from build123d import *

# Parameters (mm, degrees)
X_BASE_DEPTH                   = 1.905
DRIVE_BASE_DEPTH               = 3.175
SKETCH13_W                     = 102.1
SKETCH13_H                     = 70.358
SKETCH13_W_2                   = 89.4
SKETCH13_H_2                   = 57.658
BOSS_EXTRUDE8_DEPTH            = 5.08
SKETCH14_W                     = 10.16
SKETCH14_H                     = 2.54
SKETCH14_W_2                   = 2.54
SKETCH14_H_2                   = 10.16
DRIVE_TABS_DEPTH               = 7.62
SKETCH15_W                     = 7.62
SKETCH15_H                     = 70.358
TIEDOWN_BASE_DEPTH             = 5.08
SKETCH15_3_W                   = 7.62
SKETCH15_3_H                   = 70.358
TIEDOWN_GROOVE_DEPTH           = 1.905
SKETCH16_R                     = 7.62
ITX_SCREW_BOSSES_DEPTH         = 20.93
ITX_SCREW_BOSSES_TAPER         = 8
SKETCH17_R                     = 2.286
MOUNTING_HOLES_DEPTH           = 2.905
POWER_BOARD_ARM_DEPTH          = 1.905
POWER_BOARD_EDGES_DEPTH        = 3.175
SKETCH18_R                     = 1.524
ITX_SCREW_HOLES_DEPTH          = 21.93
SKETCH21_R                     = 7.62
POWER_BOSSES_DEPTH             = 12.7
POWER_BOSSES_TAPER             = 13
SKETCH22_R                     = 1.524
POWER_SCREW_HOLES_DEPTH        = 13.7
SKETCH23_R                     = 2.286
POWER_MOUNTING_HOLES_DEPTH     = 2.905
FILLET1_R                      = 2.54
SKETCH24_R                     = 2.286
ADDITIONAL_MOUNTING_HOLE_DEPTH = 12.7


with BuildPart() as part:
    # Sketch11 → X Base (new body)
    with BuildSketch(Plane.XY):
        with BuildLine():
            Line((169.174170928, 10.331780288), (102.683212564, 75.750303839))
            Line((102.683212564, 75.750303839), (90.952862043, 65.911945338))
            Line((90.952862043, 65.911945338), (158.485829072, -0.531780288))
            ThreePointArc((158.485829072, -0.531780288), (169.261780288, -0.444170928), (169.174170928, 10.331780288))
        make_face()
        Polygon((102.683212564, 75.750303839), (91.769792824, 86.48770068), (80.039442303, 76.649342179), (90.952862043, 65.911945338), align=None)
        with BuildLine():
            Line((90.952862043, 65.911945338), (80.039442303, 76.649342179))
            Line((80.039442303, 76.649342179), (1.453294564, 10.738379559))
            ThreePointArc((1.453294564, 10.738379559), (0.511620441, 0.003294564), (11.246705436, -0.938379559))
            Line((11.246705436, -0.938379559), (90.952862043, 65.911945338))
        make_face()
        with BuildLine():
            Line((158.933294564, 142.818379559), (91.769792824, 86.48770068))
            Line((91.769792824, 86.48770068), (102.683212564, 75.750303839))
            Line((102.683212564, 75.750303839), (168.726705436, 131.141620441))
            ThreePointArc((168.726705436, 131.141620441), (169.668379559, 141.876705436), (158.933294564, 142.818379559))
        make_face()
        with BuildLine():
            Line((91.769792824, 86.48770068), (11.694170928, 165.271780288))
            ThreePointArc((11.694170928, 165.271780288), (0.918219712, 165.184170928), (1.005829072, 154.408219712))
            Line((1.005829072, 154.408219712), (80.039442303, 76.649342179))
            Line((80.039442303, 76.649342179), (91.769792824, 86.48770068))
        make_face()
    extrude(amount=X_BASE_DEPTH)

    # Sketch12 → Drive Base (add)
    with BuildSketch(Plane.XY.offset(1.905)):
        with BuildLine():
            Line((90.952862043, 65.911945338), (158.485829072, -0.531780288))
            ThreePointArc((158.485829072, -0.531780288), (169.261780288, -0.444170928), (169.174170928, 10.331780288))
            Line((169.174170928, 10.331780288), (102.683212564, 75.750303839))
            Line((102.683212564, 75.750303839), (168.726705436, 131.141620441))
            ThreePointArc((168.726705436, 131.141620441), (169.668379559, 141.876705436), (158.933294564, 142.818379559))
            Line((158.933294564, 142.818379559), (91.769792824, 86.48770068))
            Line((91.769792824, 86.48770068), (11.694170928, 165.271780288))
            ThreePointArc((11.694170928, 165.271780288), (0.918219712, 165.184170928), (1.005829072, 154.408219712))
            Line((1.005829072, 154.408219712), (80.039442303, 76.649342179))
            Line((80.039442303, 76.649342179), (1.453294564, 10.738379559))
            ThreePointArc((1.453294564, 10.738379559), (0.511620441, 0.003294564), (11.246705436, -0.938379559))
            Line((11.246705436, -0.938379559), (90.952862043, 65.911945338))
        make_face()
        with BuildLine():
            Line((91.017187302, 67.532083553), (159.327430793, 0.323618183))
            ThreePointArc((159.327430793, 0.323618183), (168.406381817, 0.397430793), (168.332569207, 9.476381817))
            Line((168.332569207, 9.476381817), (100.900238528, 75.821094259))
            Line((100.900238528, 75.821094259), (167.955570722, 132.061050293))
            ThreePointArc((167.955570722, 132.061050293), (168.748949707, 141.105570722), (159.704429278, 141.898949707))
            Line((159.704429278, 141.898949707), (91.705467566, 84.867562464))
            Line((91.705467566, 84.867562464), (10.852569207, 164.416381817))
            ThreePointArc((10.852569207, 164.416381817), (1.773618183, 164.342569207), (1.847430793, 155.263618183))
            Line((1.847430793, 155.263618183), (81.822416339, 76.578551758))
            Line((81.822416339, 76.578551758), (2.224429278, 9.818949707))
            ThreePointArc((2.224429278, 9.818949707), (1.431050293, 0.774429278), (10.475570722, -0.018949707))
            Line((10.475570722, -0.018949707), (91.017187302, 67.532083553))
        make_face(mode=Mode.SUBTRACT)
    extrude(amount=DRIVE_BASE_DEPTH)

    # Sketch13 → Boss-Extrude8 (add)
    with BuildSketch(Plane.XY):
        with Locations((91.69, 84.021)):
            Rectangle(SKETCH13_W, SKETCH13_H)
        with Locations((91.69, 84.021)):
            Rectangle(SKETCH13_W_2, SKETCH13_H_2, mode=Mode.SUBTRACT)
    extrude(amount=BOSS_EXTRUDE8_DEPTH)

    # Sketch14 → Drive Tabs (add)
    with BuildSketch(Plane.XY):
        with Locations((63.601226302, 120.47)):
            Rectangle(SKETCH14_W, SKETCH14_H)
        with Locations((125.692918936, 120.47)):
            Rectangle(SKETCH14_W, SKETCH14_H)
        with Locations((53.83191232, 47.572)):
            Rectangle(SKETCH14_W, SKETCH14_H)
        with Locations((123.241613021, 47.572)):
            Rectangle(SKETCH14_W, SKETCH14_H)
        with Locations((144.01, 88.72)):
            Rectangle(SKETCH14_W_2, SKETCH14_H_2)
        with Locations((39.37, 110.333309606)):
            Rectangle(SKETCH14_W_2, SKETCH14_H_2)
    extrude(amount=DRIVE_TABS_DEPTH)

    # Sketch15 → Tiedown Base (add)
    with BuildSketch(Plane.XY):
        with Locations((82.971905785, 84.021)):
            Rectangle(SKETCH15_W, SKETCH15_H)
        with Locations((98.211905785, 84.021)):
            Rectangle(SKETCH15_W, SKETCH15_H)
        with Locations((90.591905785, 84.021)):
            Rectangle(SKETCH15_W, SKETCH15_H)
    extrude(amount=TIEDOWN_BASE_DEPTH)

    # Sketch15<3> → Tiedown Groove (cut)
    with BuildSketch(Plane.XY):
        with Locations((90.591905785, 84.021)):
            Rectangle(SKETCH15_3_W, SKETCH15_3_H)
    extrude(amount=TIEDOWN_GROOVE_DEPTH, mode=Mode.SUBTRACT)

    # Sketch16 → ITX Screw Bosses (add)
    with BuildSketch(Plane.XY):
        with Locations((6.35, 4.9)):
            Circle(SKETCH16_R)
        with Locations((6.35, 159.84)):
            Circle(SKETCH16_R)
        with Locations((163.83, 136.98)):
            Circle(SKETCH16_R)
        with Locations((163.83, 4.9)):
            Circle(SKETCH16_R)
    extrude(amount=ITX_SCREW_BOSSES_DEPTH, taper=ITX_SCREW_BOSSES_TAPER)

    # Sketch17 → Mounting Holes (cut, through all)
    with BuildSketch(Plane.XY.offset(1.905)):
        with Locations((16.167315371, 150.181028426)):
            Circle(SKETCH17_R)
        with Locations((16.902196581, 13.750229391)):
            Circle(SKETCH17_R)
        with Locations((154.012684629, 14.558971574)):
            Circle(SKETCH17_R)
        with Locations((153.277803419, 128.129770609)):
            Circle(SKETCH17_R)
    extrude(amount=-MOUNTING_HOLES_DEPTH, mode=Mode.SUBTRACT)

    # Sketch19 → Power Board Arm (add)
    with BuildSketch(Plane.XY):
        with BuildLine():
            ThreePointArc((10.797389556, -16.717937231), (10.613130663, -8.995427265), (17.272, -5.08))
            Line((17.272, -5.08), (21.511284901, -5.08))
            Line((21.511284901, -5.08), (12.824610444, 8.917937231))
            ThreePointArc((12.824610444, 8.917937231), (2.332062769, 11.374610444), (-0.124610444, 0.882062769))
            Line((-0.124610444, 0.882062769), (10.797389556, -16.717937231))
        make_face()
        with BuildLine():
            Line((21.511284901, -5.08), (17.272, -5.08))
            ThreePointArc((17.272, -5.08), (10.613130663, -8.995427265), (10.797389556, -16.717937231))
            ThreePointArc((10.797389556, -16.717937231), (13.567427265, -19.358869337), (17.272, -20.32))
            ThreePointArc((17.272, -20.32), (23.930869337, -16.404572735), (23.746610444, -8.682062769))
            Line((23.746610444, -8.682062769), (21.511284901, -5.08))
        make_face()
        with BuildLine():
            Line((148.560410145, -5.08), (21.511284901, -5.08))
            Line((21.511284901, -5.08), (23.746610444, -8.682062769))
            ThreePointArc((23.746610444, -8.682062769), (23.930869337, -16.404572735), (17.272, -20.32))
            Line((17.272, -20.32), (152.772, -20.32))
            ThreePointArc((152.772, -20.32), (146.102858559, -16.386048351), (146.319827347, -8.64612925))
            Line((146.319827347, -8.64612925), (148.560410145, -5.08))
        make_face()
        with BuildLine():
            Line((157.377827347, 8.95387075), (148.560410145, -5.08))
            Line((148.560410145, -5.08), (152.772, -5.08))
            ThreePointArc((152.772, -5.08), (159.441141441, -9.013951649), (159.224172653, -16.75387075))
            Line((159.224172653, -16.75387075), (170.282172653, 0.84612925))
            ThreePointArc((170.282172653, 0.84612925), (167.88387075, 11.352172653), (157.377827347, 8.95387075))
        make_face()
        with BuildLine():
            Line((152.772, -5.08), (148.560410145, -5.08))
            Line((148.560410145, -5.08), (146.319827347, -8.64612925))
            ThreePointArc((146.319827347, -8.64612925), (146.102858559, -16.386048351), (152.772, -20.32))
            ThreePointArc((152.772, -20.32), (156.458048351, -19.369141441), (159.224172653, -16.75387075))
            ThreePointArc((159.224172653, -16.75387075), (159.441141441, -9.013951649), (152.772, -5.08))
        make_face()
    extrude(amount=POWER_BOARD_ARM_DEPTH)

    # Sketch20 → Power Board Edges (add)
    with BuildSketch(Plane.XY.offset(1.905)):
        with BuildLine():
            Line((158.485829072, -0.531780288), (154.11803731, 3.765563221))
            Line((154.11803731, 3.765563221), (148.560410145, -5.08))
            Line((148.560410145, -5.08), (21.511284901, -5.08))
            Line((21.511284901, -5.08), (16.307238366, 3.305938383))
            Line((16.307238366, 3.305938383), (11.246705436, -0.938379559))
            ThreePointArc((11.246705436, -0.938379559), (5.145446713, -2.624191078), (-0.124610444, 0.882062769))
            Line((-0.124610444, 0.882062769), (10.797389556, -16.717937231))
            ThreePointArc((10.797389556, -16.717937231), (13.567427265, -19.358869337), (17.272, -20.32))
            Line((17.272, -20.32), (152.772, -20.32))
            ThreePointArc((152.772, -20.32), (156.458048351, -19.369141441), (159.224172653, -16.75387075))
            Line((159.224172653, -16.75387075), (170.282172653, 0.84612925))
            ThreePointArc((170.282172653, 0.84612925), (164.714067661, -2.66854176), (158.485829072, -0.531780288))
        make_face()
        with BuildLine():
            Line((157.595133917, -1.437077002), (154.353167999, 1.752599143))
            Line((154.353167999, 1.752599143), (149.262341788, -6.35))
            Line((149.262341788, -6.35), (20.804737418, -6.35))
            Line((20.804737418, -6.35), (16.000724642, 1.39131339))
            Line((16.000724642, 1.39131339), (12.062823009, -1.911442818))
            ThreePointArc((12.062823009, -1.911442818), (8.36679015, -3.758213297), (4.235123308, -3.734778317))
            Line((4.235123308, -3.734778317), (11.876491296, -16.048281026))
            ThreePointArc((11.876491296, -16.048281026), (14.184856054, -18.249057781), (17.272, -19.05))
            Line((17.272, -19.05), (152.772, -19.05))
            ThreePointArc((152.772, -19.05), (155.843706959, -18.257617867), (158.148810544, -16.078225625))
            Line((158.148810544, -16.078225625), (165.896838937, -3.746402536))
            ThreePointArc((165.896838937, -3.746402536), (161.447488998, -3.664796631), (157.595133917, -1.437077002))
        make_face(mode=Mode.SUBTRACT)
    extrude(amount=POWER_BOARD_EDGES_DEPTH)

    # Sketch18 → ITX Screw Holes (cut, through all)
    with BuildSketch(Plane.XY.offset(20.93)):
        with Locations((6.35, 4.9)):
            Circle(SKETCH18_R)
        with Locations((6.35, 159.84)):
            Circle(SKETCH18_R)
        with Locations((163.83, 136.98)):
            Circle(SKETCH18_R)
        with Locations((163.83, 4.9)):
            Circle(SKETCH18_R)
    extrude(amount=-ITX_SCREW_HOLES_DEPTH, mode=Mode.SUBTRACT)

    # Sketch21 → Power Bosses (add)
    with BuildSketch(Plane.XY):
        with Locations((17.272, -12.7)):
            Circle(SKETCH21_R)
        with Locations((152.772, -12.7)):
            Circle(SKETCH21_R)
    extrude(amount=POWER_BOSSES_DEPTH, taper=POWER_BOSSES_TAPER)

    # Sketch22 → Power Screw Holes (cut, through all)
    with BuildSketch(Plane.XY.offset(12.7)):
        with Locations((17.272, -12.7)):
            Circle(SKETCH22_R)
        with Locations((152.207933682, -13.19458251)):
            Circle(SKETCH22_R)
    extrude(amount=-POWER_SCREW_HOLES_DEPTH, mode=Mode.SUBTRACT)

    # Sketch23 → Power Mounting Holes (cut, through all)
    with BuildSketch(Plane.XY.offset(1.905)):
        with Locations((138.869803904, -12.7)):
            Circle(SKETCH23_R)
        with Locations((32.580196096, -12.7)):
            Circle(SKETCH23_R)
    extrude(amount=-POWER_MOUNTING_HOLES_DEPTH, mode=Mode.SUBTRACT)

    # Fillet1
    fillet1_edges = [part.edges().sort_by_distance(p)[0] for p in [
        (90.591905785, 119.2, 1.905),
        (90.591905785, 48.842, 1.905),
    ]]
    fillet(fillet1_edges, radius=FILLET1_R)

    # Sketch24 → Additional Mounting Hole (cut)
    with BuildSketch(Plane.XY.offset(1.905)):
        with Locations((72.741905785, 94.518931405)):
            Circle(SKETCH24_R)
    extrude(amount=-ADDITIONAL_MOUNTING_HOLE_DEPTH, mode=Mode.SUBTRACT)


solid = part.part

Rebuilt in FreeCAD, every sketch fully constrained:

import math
import FreeCAD as App
import Part
import Sketcher
from FreeCAD import Vector
Q = App.Units.Quantity


def edges_at(feature, points):
    """Names of the edges that pass closest to the given points."""
    edges = feature.Shape.Edges
    near = lambda p: min(range(len(edges)), key=lambda i: edges[i].distToShape(Part.Vertex(*p))[0])
    return sorted({f"Edge{near(p) + 1}" for p in points})


def add_polygon(sketch, points):
    """Adds a closed chain of lines whose ends are joined by coincident constraints."""
    first, n = sketch.GeometryCount, len(points)
    for a, b in zip(points, points[1:] + points[:1]):
        sketch.addGeometry(Part.LineSegment(App.Vector(*a, 0), App.Vector(*b, 0)), False)
    for i in range(n):
        sketch.addConstraint(Sketcher.Constraint("Coincident", first + i, 2, first + (i + 1) % n, 1))

doc = App.newDocument("Part")
body = doc.addObject("PartDesign::Body", "Body")

sketch1 = body.newObject("Sketcher::SketchObject", "Sketch")
sketch1.AttachmentSupport = (doc.getObject("XY_Plane"), [""])
sketch1.MapMode = "FlatFace"
sketch1.addGeometry([
    Part.LineSegment(Vector(169, 10, 0), Vector(103, 76, 0)),
    Part.LineSegment(Vector(103, 76, 0), Vector(169, 131, 0)),
    Part.ArcOfCircle(Part.Circle(Vector(164, 137, 0), Vector(0, 0, 1), 8), math.radians(-50), math.radians(130)),
    Part.LineSegment(Vector(159, 143, 0), Vector(92, 86, 0)),
    Part.LineSegment(Vector(92, 86, 0), Vector(12, 165, 0)),
    Part.ArcOfCircle(Part.Circle(Vector(6, 160, 0), Vector(0, 0, 1), 8), math.radians(45), math.radians(225)),
    Part.LineSegment(Vector(1, 154, 0), Vector(80, 77, 0)),
    Part.LineSegment(Vector(80, 77, 0), Vector(1, 11, 0)),
    Part.ArcOfCircle(Part.Circle(Vector(6, 5, 0), Vector(0, 0, 1), 8), math.radians(130), math.radians(310)),
    Part.LineSegment(Vector(11, -1, 0), Vector(91, 66, 0)),
    Part.LineSegment(Vector(91, 66, 0), Vector(158, -1, 0)),
    Part.ArcOfCircle(Part.Circle(Vector(164, 5, 0), Vector(0, 0, 1), 8), math.radians(-135), math.radians(45)),
], False)
sketch1.addConstraint([
    Sketcher.Constraint("Coincident", 0, 2, 1, 1),
    Sketcher.Constraint("Tangent", 1, 2, 2, 1),
    Sketcher.Constraint("Tangent", 2, 2, 3, 1),
    Sketcher.Constraint("Coincident", 3, 2, 4, 1),
    Sketcher.Constraint("Tangent", 4, 2, 5, 1),
    Sketcher.Constraint("Tangent", 5, 2, 6, 1),
    Sketcher.Constraint("Coincident", 6, 2, 7, 1),
    Sketcher.Constraint("Tangent", 7, 2, 8, 1),
    Sketcher.Constraint("Tangent", 8, 2, 9, 1),
    Sketcher.Constraint("Coincident", 9, 2, 10, 1),
    Sketcher.Constraint("Tangent", 10, 2, 11, 1),
    Sketcher.Constraint("Tangent", 11, 2, 0, 1),
    Sketcher.Constraint("Equal", 2, 5),
    Sketcher.Constraint("Equal", 5, 8),
    Sketcher.Constraint("Equal", 8, 11),
    Sketcher.Constraint("Parallel", 1, 3),
    Sketcher.Constraint("Parallel", 0, 4),
    Sketcher.Constraint("Parallel", 4, 6),
    Sketcher.Constraint("Parallel", 3, 7),
    Sketcher.Constraint("Parallel", 7, 9),
    Sketcher.Constraint("Parallel", 6, 10),
    Sketcher.Constraint("Horizontal", 8, 3, 11, 3),
    Sketcher.Constraint("Vertical", 5, 3, 8, 3),
    Sketcher.Constraint("Vertical", 2, 3, 11, 3),
    Sketcher.Constraint("Radius", 2, Q("0.3 in")),
    Sketcher.Constraint("DistanceX", 5, 3, 2, 3, Q("6.2 in")),
    Sketcher.Constraint("DistanceY", 2, 3, 5, 3, Q("0.9 in")),
    Sketcher.Constraint("DistanceY", 8, 3, 5, 3, Q("6.1 in")),
    Sketcher.Constraint("DistanceX", -1, 1, 2, 3, Q("6.45 in")),
    Sketcher.Constraint("DistanceY", -1, 1, 2, 3, Q("136.98 mm")),
    Sketcher.Constraint("DistanceY", -1, 1, 3, 2, Q("86.487701 mm")),
    Sketcher.Constraint("DistanceX", 3, 2, 2, 2, Q("67.163502 mm")),
])
pad1 = body.newObject("PartDesign::Pad", "Pad")
pad1.Profile = sketch1
pad1.Length = Q("0.075 in")

sketch2 = body.newObject("Sketcher::SketchObject", "Sketch001")
sketch2.AttachmentSupport = (doc.getObject("XY_Plane"), [""])
sketch2.MapMode = "FlatFace"
sketch2.AttachmentOffset = App.Placement(Vector(0, 0, 0.075 * 25.4), App.Rotation())
sketch2.addGeometry([
    Part.LineSegment(Vector(91, 66, 0), Vector(158, -1, 0)),
    Part.ArcOfCircle(Part.Circle(Vector(164, 5, 0), Vector(0, 0, 1), 8), math.radians(-135), math.radians(45)),
    Part.LineSegment(Vector(169, 10, 0), Vector(103, 76, 0)),
    Part.LineSegment(Vector(103, 76, 0), Vector(169, 131, 0)),
    Part.ArcOfCircle(Part.Circle(Vector(164, 137, 0), Vector(0, 0, 1), 8), math.radians(-50), math.radians(130)),
    Part.LineSegment(Vector(159, 143, 0), Vector(92, 86, 0)),
    Part.LineSegment(Vector(92, 86, 0), Vector(12, 165, 0)),
    Part.ArcOfCircle(Part.Circle(Vector(6, 160, 0), Vector(0, 0, 1), 8), math.radians(45), math.radians(225)),
    Part.LineSegment(Vector(1, 154, 0), Vector(80, 77, 0)),
    Part.LineSegment(Vector(80, 77, 0), Vector(1, 11, 0)),
    Part.ArcOfCircle(Part.Circle(Vector(6, 5, 0), Vector(0, 0, 1), 8), math.radians(130), math.radians(310)),
    Part.LineSegment(Vector(11, -1, 0), Vector(91, 66, 0)),
    Part.LineSegment(Vector(159, 0, 0), Vector(91, 68, 0)),
    Part.LineSegment(Vector(91, 68, 0), Vector(10, 0, 0)),
    Part.ArcOfCircle(Part.Circle(Vector(6, 5, 0), Vector(0, 0, 1), 6), math.radians(130), math.radians(310)),
    Part.LineSegment(Vector(2, 10, 0), Vector(82, 77, 0)),
    Part.LineSegment(Vector(82, 77, 0), Vector(2, 155, 0)),
    Part.ArcOfCircle(Part.Circle(Vector(6, 160, 0), Vector(0, 0, 1), 6), math.radians(45), math.radians(225)),
    Part.LineSegment(Vector(11, 164, 0), Vector(92, 85, 0)),
    Part.LineSegment(Vector(92, 85, 0), Vector(160, 142, 0)),
    Part.ArcOfCircle(Part.Circle(Vector(164, 137, 0), Vector(0, 0, 1), 6), math.radians(-50), math.radians(130)),
    Part.LineSegment(Vector(168, 132, 0), Vector(101, 76, 0)),
    Part.LineSegment(Vector(101, 76, 0), Vector(168, 9, 0)),
    Part.ArcOfCircle(Part.Circle(Vector(164, 5, 0), Vector(0, 0, 1), 6), math.radians(-135), math.radians(45)),
], False)
sketch2.addConstraint([
    Sketcher.Constraint("Tangent", 0, 2, 1, 1),
    Sketcher.Constraint("Tangent", 1, 2, 2, 1),
    Sketcher.Constraint("Coincident", 2, 2, 3, 1),
    Sketcher.Constraint("Tangent", 3, 2, 4, 1),
    Sketcher.Constraint("Tangent", 4, 2, 5, 1),
    Sketcher.Constraint("Coincident", 5, 2, 6, 1),
    Sketcher.Constraint("Tangent", 6, 2, 7, 1),
    Sketcher.Constraint("Tangent", 7, 2, 8, 1),
    Sketcher.Constraint("Coincident", 8, 2, 9, 1),
    Sketcher.Constraint("Tangent", 9, 2, 10, 1),
    Sketcher.Constraint("Tangent", 10, 2, 11, 1),
    Sketcher.Constraint("Coincident", 11, 2, 0, 1),
    Sketcher.Constraint("Coincident", 12, 2, 13, 1),
    Sketcher.Constraint("Tangent", 13, 2, 14, 2),
    Sketcher.Constraint("Tangent", 14, 1, 15, 1),
    Sketcher.Constraint("Coincident", 15, 2, 16, 1),
    Sketcher.Constraint("Tangent", 16, 2, 17, 2),
    Sketcher.Constraint("Tangent", 17, 1, 18, 1),
    Sketcher.Constraint("Coincident", 18, 2, 19, 1),
    Sketcher.Constraint("Tangent", 19, 2, 20, 2),
    Sketcher.Constraint("Tangent", 20, 1, 21, 1),
    Sketcher.Constraint("Coincident", 21, 2, 22, 1),
    Sketcher.Constraint("Tangent", 22, 2, 23, 2),
    Sketcher.Constraint("Tangent", 23, 1, 12, 1),
    Sketcher.Constraint("Coincident", 14, 3, 10, 3),
    Sketcher.Constraint("Coincident", 17, 3, 7, 3),
    Sketcher.Constraint("Coincident", 20, 3, 4, 3),
    Sketcher.Constraint("Coincident", 23, 3, 1, 3),
    Sketcher.Constraint("Equal", 1, 4),
    Sketcher.Constraint("Equal", 4, 7),
    Sketcher.Constraint("Equal", 7, 10),
    Sketcher.Constraint("Equal", 14, 17),
    Sketcher.Constraint("Equal", 17, 20),
    Sketcher.Constraint("Equal", 20, 23),
    Sketcher.Constraint("Parallel", 0, 2),
    Sketcher.Constraint("Parallel", 3, 5),
    Sketcher.Constraint("Parallel", 2, 6),
    Sketcher.Constraint("Parallel", 6, 8),
    Sketcher.Constraint("Parallel", 5, 9),
    Sketcher.Constraint("Parallel", 9, 11),
    Sketcher.Constraint("Parallel", 8, 12),
    Sketcher.Constraint("Parallel", 11, 13),
    Sketcher.Constraint("Parallel", 13, 15),
    Sketcher.Constraint("Parallel", 12, 16),
    Sketcher.Constraint("Parallel", 16, 18),
    Sketcher.Constraint("Parallel", 15, 19),
    Sketcher.Constraint("Parallel", 19, 21),
    Sketcher.Constraint("Parallel", 18, 22),
    Sketcher.Constraint("Horizontal", 1, 3, 10, 3),
    Sketcher.Constraint("Vertical", 1, 3, 4, 3),
    Sketcher.Constraint("Vertical", 7, 3, 10, 3),
    Sketcher.Constraint("Radius", 1, Q("0.3 in")),
    Sketcher.Constraint("DistanceY", 1, 3, 4, 3, Q("5.2 in")),
    Sketcher.Constraint("DistanceX", 7, 3, 4, 3, Q("6.2 in")),
    Sketcher.Constraint("DistanceY", 4, 3, 7, 3, Q("0.9 in")),
    Sketcher.Constraint("DistanceX", -1, 1, 1, 3, Q("6.45 in")),
    Sketcher.Constraint("Radius", 14, Q("6.42 mm")),
    Sketcher.Constraint("Distance", 19, Q("88.749298 mm")),
    Sketcher.Constraint("DistanceY", -1, 1, 1, 3, Q("4.9 mm")),
    Sketcher.Constraint("DistanceY", -1, 1, 5, 2, Q("86.487701 mm")),
])
pad2 = body.newObject("PartDesign::Pad", "Pad001")
pad2.Profile = sketch2
pad2.Length = Q("0.125 in")

sketch3 = body.newObject("Sketcher::SketchObject", "Sketch002")
sketch3.AttachmentSupport = (doc.getObject("XY_Plane"), [""])
sketch3.MapMode = "FlatFace"
add_polygon(sketch3, [(41, 119), (41, 49), (143, 49), (143, 119)])
add_polygon(sketch3, [(136, 55), (47, 55), (47, 113), (136, 113)])
sketch3.addConstraint([
    Sketcher.Constraint("Vertical", 0),
    Sketcher.Constraint("Horizontal", 1),
    Sketcher.Constraint("Vertical", 2),
    Sketcher.Constraint("Horizontal", 3),
    Sketcher.Constraint("Horizontal", 4),
    Sketcher.Constraint("Vertical", 5),
    Sketcher.Constraint("Horizontal", 6),
    Sketcher.Constraint("Vertical", 7),
    Sketcher.Constraint("DistanceY", 0, 2, 0, 1, Q("2.77 in")),
    Sketcher.Constraint("DistanceY", 5, 1, 5, 2, Q("2.27 in")),
    Sketcher.Constraint("DistanceX", -1, 1, 0, 2, Q("1.6 in")),
    Sketcher.Constraint("DistanceX", -1, 1, 4, 2, Q("1.85 in")),
    Sketcher.Constraint("DistanceY", 0, 2, 4, 2, Q("0.25 in")),
    Sketcher.Constraint("DistanceX", 6, 2, 2, 2, Q("0.25 in")),
    Sketcher.Constraint("DistanceX", 1, 1, 1, 2, Q("102.1 mm")),
    Sketcher.Constraint("DistanceY", -1, 1, 0, 2, Q("48.842 mm")),
])
pad3 = body.newObject("PartDesign::Pad", "Pad002")
pad3.Profile = sketch3
pad3.Length = Q("0.2 in")

sketch4 = body.newObject("Sketcher::SketchObject", "Sketch003")
sketch4.AttachmentSupport = (doc.getObject("XY_Plane"), [""])
sketch4.MapMode = "FlatFace"
add_polygon(sketch4, [(58.5, 121.7), (58.5, 119.2), (68.7, 119.2), (68.7, 121.7)])
add_polygon(sketch4, [(120.6, 121.7), (120.6, 119.2), (130.8, 119.2), (130.8, 121.7)])
add_polygon(sketch4, [(48.8, 48.8), (48.8, 46.3), (58.9, 46.3), (58.9, 48.8)])
add_polygon(sketch4, [(118.2, 48.8), (118.2, 46.3), (128.3, 46.3), (128.3, 48.8)])
add_polygon(sketch4, [(142.7, 93.8), (142.7, 83.6), (145.3, 83.6), (145.3, 93.8)])
add_polygon(sketch4, [(38.1, 115.4), (38.1, 105.3), (40.6, 105.3), (40.6, 115.4)])
sketch4.addConstraint([
    Sketcher.Constraint("Vertical", 0),
    Sketcher.Constraint("Horizontal", 1),
    Sketcher.Constraint("Vertical", 2),
    Sketcher.Constraint("Horizontal", 3),
    Sketcher.Constraint("Vertical", 4),
    Sketcher.Constraint("Horizontal", 5),
    Sketcher.Constraint("Vertical", 6),
    Sketcher.Constraint("Horizontal", 7),
    Sketcher.Constraint("Vertical", 8),
    Sketcher.Constraint("Horizontal", 9),
    Sketcher.Constraint("Vertical", 10),
    Sketcher.Constraint("Horizontal", 11),
    Sketcher.Constraint("Vertical", 12),
    Sketcher.Constraint("Horizontal", 13),
    Sketcher.Constraint("Vertical", 14),
    Sketcher.Constraint("Horizontal", 15),
    Sketcher.Constraint("Vertical", 16),
    Sketcher.Constraint("Horizontal", 17),
    Sketcher.Constraint("Vertical", 18),
    Sketcher.Constraint("Horizontal", 19),
    Sketcher.Constraint("Vertical", 20),
    Sketcher.Constraint("Horizontal", 21),
    Sketcher.Constraint("Vertical", 22),
    Sketcher.Constraint("Horizontal", 23),
    Sketcher.Constraint("Horizontal", 1, 2, 4, 2),
    Sketcher.Constraint("Horizontal", 3, 2, 6, 2),
    Sketcher.Constraint("Horizontal", 9, 2, 12, 2),
    Sketcher.Constraint("Horizontal", 11, 2, 14, 2),
    Sketcher.Constraint("Equal", 3, 5),
    Sketcher.Constraint("Equal", 7, 9),
    Sketcher.Constraint("Equal", 11, 13),
    Sketcher.Constraint("Equal", 19, 21),
    Sketcher.Constraint("Equal", 23, 0),
    Sketcher.Constraint("Equal", 6, 8),
    Sketcher.Constraint("Equal", 15, 16),
    Sketcher.Constraint("Equal", 18, 20),
    Sketcher.Constraint("DistanceX", 1, 1, 1, 2, Q("0.4 in")),
    Sketcher.Constraint("DistanceX", 17, 1, 17, 2, Q("0.1 in")),
    Sketcher.Constraint("DistanceY", 18, 2, 5, 2, Q("1 in")),
    Sketcher.Constraint("DistanceX", -1, 1, 20, 2, Q("1.5 in")),
    Sketcher.Constraint("DistanceY", 8, 2, 0, 2, Q("2.87 in")),
    Sketcher.Constraint("DistanceY", -1, 1, 0, 2, Q("119.2 mm")),
    Sketcher.Constraint("DistanceX", -1, 1, 16, 2, Q("142.74 mm")),
    Sketcher.Constraint("DistanceX", 9, 2, 12, 2, Q("59.249701 mm")),
    Sketcher.Constraint("DistanceX", -1, 1, 4, 2, Q("120.612919 mm")),
    Sketcher.Constraint("DistanceY", -1, 1, 20, 2, Q("105.25331 mm")),
    Sketcher.Constraint("DistanceX", -1, 1, 0, 2, Q("58.521226 mm")),
    Sketcher.Constraint("DistanceX", -1, 1, 8, 2, Q("48.751912 mm")),
])
pad4 = body.newObject("PartDesign::Pad", "Pad003")
pad4.Profile = sketch4
pad4.Length = Q("0.3 in")

sketch5 = body.newObject("Sketcher::SketchObject", "Sketch004")
sketch5.AttachmentSupport = (doc.getObject("XY_Plane"), [""])
sketch5.MapMode = "FlatFace"
add_polygon(sketch5, [(79, 119), (79, 49), (102, 49), (102, 119)])
sketch5.addConstraint([
    Sketcher.Constraint("Vertical", 0),
    Sketcher.Constraint("Horizontal", 1),
    Sketcher.Constraint("Vertical", 2),
    Sketcher.Constraint("Horizontal", 3),
    Sketcher.Constraint("DistanceX", 1, 1, 1, 2, Q("0.9 in")),
    Sketcher.Constraint("DistanceY", 0, 2, 0, 1, Q("2.77 in")),
    Sketcher.Constraint("DistanceY", -1, 1, 0, 2, Q("48.842 mm")),
    Sketcher.Constraint("DistanceX", -1, 1, 0, 2, Q("79.161906 mm")),
])
pad5 = body.newObject("PartDesign::Pad", "Pad004")
pad5.Profile = sketch5
pad5.Length = Q("0.2 in")

sketch6 = body.newObject("Sketcher::SketchObject", "Sketch005")
sketch6.AttachmentSupport = (doc.getObject("XY_Plane"), [""])
sketch6.MapMode = "FlatFace"
add_polygon(sketch6, [(87, 119), (87, 49), (94, 49), (94, 119)])
sketch6.addConstraint([
    Sketcher.Constraint("Vertical", 0),
    Sketcher.Constraint("Horizontal", 1),
    Sketcher.Constraint("Vertical", 2),
    Sketcher.Constraint("Horizontal", 3),
    Sketcher.Constraint("DistanceX", 1, 1, 1, 2, Q("0.3 in")),
    Sketcher.Constraint("DistanceY", 0, 2, 0, 1, Q("2.77 in")),
    Sketcher.Constraint("DistanceY", -1, 1, 0, 2, Q("48.842 mm")),
    Sketcher.Constraint("DistanceX", -1, 1, 0, 2, Q("86.781906 mm")),
])
pocket1 = body.newObject("PartDesign::Pocket", "Pocket")
pocket1.Profile = sketch6
pocket1.Length = Q("0.075 in")
pocket1.Reversed = True

sketch7 = body.newObject("Sketcher::SketchObject", "Sketch006")
sketch7.AttachmentSupport = (doc.getObject("XY_Plane"), [""])
sketch7.MapMode = "FlatFace"
sketch7.addGeometry([
    Part.Circle(Vector(6, 5, 0), Vector(0, 0, 1), 8),
    Part.Circle(Vector(6, 160, 0), Vector(0, 0, 1), 8),
    Part.Circle(Vector(164, 137, 0), Vector(0, 0, 1), 8),
    Part.Circle(Vector(164, 5, 0), Vector(0, 0, 1), 8),
], False)
sketch7.addConstraint([
    Sketcher.Constraint("Equal", 0, 1),
    Sketcher.Constraint("Equal", 1, 2),
    Sketcher.Constraint("Equal", 2, 3),
    Sketcher.Constraint("Horizontal", 0, 3, 3, 3),
    Sketcher.Constraint("Vertical", 0, 3, 1, 3),
    Sketcher.Constraint("Vertical", 2, 3, 3, 3),
    Sketcher.Constraint("Diameter", 0, Q("0.6 in")),
    Sketcher.Constraint("DistanceY", 0, 3, 1, 3, Q("6.1 in")),
    Sketcher.Constraint("DistanceX", 1, 3, 2, 3, Q("6.2 in")),
    Sketcher.Constraint("DistanceY", 2, 3, 1, 3, Q("0.9 in")),
    Sketcher.Constraint("DistanceX", -1, 1, 0, 3, Q("0.25 in")),
    Sketcher.Constraint("DistanceY", -1, 1, 0, 3, Q("4.9 mm")),
])
pad6 = body.newObject("PartDesign::Pad", "Pad005")
pad6.Profile = sketch7
pad6.Length = 20.93
pad6.TaperAngle = -8

sketch8 = body.newObject("Sketcher::SketchObject", "Sketch007")
sketch8.AttachmentSupport = (doc.getObject("XY_Plane"), [""])
sketch8.MapMode = "FlatFace"
sketch8.AttachmentOffset = App.Placement(Vector(0, 0, 0.075 * 25.4), App.Rotation())
sketch8.addGeometry([
    Part.Circle(Vector(16.2, 150.2, 0), Vector(0, 0, 1), 2.3),
    Part.Circle(Vector(16.9, 13.8, 0), Vector(0, 0, 1), 2.3),
    Part.Circle(Vector(154, 14.6, 0), Vector(0, 0, 1), 2.3),
    Part.Circle(Vector(153.3, 128.1, 0), Vector(0, 0, 1), 2.3),
], False)
sketch8.addConstraint([
    Sketcher.Constraint("Equal", 0, 1),
    Sketcher.Constraint("Equal", 1, 2),
    Sketcher.Constraint("Equal", 2, 3),
    Sketcher.Constraint("Diameter", 0, Q("0.18 in")),
    Sketcher.Constraint("DistanceY", 1, 3, 0, 3, Q("136.430799 mm")),
    Sketcher.Constraint("DistanceY", 2, 3, 3, 3, Q("113.570799 mm")),
    Sketcher.Constraint("DistanceY", -1, 1, 0, 3, Q("150.181028 mm")),
    Sketcher.Constraint("DistanceY", -1, 1, 2, 3, Q("14.558972 mm")),
    Sketcher.Constraint("DistanceX", 0, 3, 1, 3, Q("0.734881 mm")),
    Sketcher.Constraint("DistanceX", 1, 3, 2, 3, Q("137.110488 mm")),
    Sketcher.Constraint("DistanceX", 3, 3, 2, 3, Q("0.734881 mm")),
    Sketcher.Constraint("DistanceX", -1, 1, 0, 3, Q("16.167315 mm")),
])
pocket2 = body.newObject("PartDesign::Pocket", "Pocket001")
pocket2.Profile = sketch8
pocket2.Type = "ThroughAll"

sketch9 = body.newObject("Sketcher::SketchObject", "Sketch008")
sketch9.AttachmentSupport = (doc.getObject("XY_Plane"), [""])
sketch9.MapMode = "FlatFace"
sketch9.addGeometry([
    Part.LineSegment(Vector(22, -5, 0), Vector(13, 9, 0)),
    Part.ArcOfCircle(Part.Circle(Vector(6, 5, 0), Vector(0, 0, 1), 8), math.radians(32), math.radians(212)),
    Part.LineSegment(Vector(0, 1, 0), Vector(11, -17, 0)),
    Part.ArcOfCircle(Part.Circle(Vector(17, -13, 0), Vector(0, 0, 1), 8), math.radians(-148), math.radians(-90)),
    Part.LineSegment(Vector(17, -20, 0), Vector(153, -20, 0)),
    Part.ArcOfCircle(Part.Circle(Vector(153, -13, 0), Vector(0, 0, 1), 8), math.radians(-90), math.radians(-32)),
    Part.LineSegment(Vector(159, -17, 0), Vector(170, 1, 0)),
    Part.ArcOfCircle(Part.Circle(Vector(164, 5, 0), Vector(0, 0, 1), 8), math.radians(-32), math.radians(148)),
    Part.LineSegment(Vector(157, 9, 0), Vector(149, -5, 0)),
    Part.LineSegment(Vector(149, -5, 0), Vector(22, -5, 0)),
], False)
sketch9.addConstraint([
    Sketcher.Constraint("Tangent", 0, 2, 1, 1),
    Sketcher.Constraint("Tangent", 1, 2, 2, 1),
    Sketcher.Constraint("Tangent", 2, 2, 3, 1),
    Sketcher.Constraint("Tangent", 3, 2, 4, 1),
    Sketcher.Constraint("Tangent", 4, 2, 5, 1),
    Sketcher.Constraint("Tangent", 5, 2, 6, 1),
    Sketcher.Constraint("Tangent", 6, 2, 7, 1),
    Sketcher.Constraint("Tangent", 7, 2, 8, 1),
    Sketcher.Constraint("Coincident", 8, 2, 9, 1),
    Sketcher.Constraint("Coincident", 9, 2, 0, 1),
    Sketcher.Constraint("Horizontal", 4),
    Sketcher.Constraint("Horizontal", 9),
    Sketcher.Constraint("Equal", 1, 3),
    Sketcher.Constraint("Equal", 3, 5),
    Sketcher.Constraint("Equal", 5, 7),
    Sketcher.Constraint("Parallel", 0, 2),
    Sketcher.Constraint("Parallel", 6, 8),
    Sketcher.Constraint("Horizontal", 1, 3, 7, 3),
    Sketcher.Constraint("Radius", 1, Q("0.3 in")),
    Sketcher.Constraint("DistanceY", 3, 3, -1, 1, Q("0.5 in")),
    Sketcher.Constraint("DistanceY", 8, 2, -1, 1, Q("0.2 in")),
    Sketcher.Constraint("DistanceX", 1, 3, 7, 3, Q("6.2 in")),
    Sketcher.Constraint("DistanceX", -1, 1, 1, 3, Q("0.25 in")),
    Sketcher.Constraint("DistanceX", -1, 1, 3, 3, Q("0.68 in")),
    Sketcher.Constraint("DistanceX", 4, 1, 4, 2, Q("135.5 mm")),
    Sketcher.Constraint("DistanceY", -1, 1, 0, 2, Q("0.3510999 in")),
])
pad7 = body.newObject("PartDesign::Pad", "Pad006")
pad7.Profile = sketch9
pad7.Length = Q("0.075 in")

sketch10 = body.newObject("Sketcher::SketchObject", "Sketch009")
sketch10.AttachmentSupport = (doc.getObject("XY_Plane"), [""])
sketch10.MapMode = "FlatFace"
sketch10.AttachmentOffset = App.Placement(Vector(0, 0, 0.075 * 25.4), App.Rotation())
sketch10.addGeometry([
    Part.LineSegment(Vector(158.5, -0.5, 0), Vector(154.1, 3.8, 0)),
    Part.LineSegment(Vector(154.1, 3.8, 0), Vector(148.6, -5.1, 0)),
    Part.LineSegment(Vector(148.6, -5.1, 0), Vector(21.5, -5.1, 0)),
    Part.LineSegment(Vector(21.5, -5.1, 0), Vector(16.3, 3.3, 0)),
    Part.LineSegment(Vector(16.3, 3.3, 0), Vector(11.2, -0.9, 0)),
    Part.ArcOfCircle(Part.Circle(Vector(6.3, 4.9, 0), Vector(0, 0, 1), 7.6), math.radians(-148), math.radians(-50)),
    Part.LineSegment(Vector(-0.1, 0.9, 0), Vector(10.8, -16.7, 0)),
    Part.ArcOfCircle(Part.Circle(Vector(17.3, -12.7, 0), Vector(0, 0, 1), 7.6), math.radians(-148), math.radians(-90)),
    Part.LineSegment(Vector(17.3, -20.3, 0), Vector(152.8, -20.3, 0)),
    Part.ArcOfCircle(Part.Circle(Vector(152.8, -12.7, 0), Vector(0, 0, 1), 7.6), math.radians(-90), math.radians(-32)),
    Part.LineSegment(Vector(159.2, -16.8, 0), Vector(170.3, 0.8, 0)),
    Part.ArcOfCircle(Part.Circle(Vector(163.8, 4.9, 0), Vector(0, 0, 1), 7.6), math.radians(-135), math.radians(-32)),
    Part.LineSegment(Vector(154.4, 1.8, 0), Vector(157.6, -1.4, 0)),
    Part.ArcOfCircle(Part.Circle(Vector(163.8, 4.9, 0), Vector(0, 0, 1), 8.9), math.radians(-135), math.radians(-77)),
    Part.LineSegment(Vector(165.9, -3.7, 0), Vector(158.1, -16.1, 0)),
    Part.ArcOfCircle(Part.Circle(Vector(152.8, -12.7, 0), Vector(0, 0, 1), 6.4), math.radians(-90), math.radians(-32)),
    Part.LineSegment(Vector(152.8, -19.1, 0), Vector(17.3, -19.1, 0)),
    Part.ArcOfCircle(Part.Circle(Vector(17.3, -12.7, 0), Vector(0, 0, 1), 6.4), math.radians(-148), math.radians(-90)),
    Part.LineSegment(Vector(11.9, -16, 0), Vector(4.2, -3.7, 0)),
    Part.ArcOfCircle(Part.Circle(Vector(6.3, 4.9, 0), Vector(0, 0, 1), 8.9), math.radians(-104), math.radians(-50)),
    Part.LineSegment(Vector(12.1, -1.9, 0), Vector(16, 1.4, 0)),
    Part.LineSegment(Vector(16, 1.4, 0), Vector(20.8, -6.3, 0)),
    Part.LineSegment(Vector(20.8, -6.3, 0), Vector(149.3, -6.3, 0)),
    Part.LineSegment(Vector(149.3, -6.3, 0), Vector(154.4, 1.8, 0)),
], False)
sketch10.addConstraint([
    Sketcher.Constraint("Coincident", 0, 2, 1, 1),
    Sketcher.Constraint("Coincident", 1, 2, 2, 1),
    Sketcher.Constraint("Coincident", 2, 2, 3, 1),
    Sketcher.Constraint("Coincident", 3, 2, 4, 1),
    Sketcher.Constraint("Tangent", 4, 2, 5, 2),
    Sketcher.Constraint("Tangent", 5, 1, 6, 1),
    Sketcher.Constraint("Tangent", 6, 2, 7, 1),
    Sketcher.Constraint("Tangent", 7, 2, 8, 1),
    Sketcher.Constraint("Tangent", 8, 2, 9, 1),
    Sketcher.Constraint("Tangent", 9, 2, 10, 1),
    Sketcher.Constraint("Tangent", 10, 2, 11, 2),
    Sketcher.Constraint("Tangent", 11, 1, 0, 1),
    Sketcher.Constraint("Tangent", 12, 2, 13, 1),
    Sketcher.Constraint("Coincident", 13, 2, 14, 1),
    Sketcher.Constraint("Tangent", 14, 2, 15, 2),
    Sketcher.Constraint("Tangent", 15, 1, 16, 1),
    Sketcher.Constraint("Tangent", 16, 2, 17, 2),
    Sketcher.Constraint("Tangent", 17, 1, 18, 1),
    Sketcher.Constraint("Coincident", 18, 2, 19, 1),
    Sketcher.Constraint("Tangent", 19, 2, 20, 1),
    Sketcher.Constraint("Coincident", 20, 2, 21, 1),
    Sketcher.Constraint("Coincident", 21, 2, 22, 1),
    Sketcher.Constraint("Coincident", 22, 2, 23, 1),
    Sketcher.Constraint("Coincident", 23, 2, 12, 1),
    Sketcher.Constraint("Horizontal", 2),
    Sketcher.Constraint("Horizontal", 8),
    Sketcher.Constraint("Horizontal", 16),
    Sketcher.Constraint("Horizontal", 22),
    Sketcher.Constraint("Coincident", 13, 3, 11, 3),
    Sketcher.Constraint("Coincident", 15, 3, 9, 3),
    Sketcher.Constraint("Coincident", 17, 3, 7, 3),
    Sketcher.Constraint("Coincident", 19, 3, 5, 3),
    Sketcher.Constraint("Equal", 5, 7),
    Sketcher.Constraint("Equal", 7, 9),
    Sketcher.Constraint("Equal", 9, 11),
    Sketcher.Constraint("Equal", 13, 19),
    Sketcher.Constraint("Parallel", 3, 6),
    Sketcher.Constraint("Parallel", 1, 10),
    Sketcher.Constraint("Parallel", 0, 12),
    Sketcher.Constraint("Parallel", 10, 14),
    Sketcher.Constraint("Parallel", 6, 18),
    Sketcher.Constraint("Parallel", 4, 20),
    Sketcher.Constraint("Parallel", 18, 21),
    Sketcher.Constraint("Parallel", 14, 23),
    Sketcher.Constraint("Horizontal", 5, 3, 11, 3),
    Sketcher.Constraint("Radius", 5, Q("0.3 in")),
    Sketcher.Constraint("Radius", 13, Q("0.35 in")),
    Sketcher.Constraint("Radius", 15, Q("0.25 in")),
    Sketcher.Constraint("DistanceY", 7, 3, -1, 1, Q("0.5 in")),
    Sketcher.Constraint("DistanceY", 1, 2, -1, 1, Q("0.2 in")),
    Sketcher.Constraint("DistanceX", 5, 3, 11, 3, Q("6.2 in")),
    Sketcher.Constraint("DistanceX", -1, 1, 5, 3, Q("0.25 in")),
    Sketcher.Constraint("DistanceX", -1, 1, 7, 3, Q("0.68 in")),
    Sketcher.Constraint("DistanceY", 21, 2, -1, 1, Q("0.25 in")),
    Sketcher.Constraint("DistanceY", -1, 1, 23, 2, Q("0.069 in")),
    Sketcher.Constraint("DistanceX", 8, 1, 8, 2, Q("135.5 mm")),
    Sketcher.Constraint("DistanceY", -1, 1, 5, 3, Q("4.9 mm")),
    Sketcher.Constraint("DistanceY", 18, 2, 4, 2, Q("2.796399 mm")),
    Sketcher.Constraint("DistanceX", 19, 2, 20, 2, Q("3.937902 mm")),
    Sketcher.Constraint("Distance", 0, Q("6.127378 mm")),
    Sketcher.Constraint("Distance", 1, Q("10.446588 mm")),
    Sketcher.Constraint("Distance", 3, Q("9.869451 mm")),
])
pad8 = body.newObject("PartDesign::Pad", "Pad007")
pad8.Profile = sketch10
pad8.Length = Q("0.125 in")

sketch11 = body.newObject("Sketcher::SketchObject", "Sketch010")
sketch11.AttachmentSupport = (doc.getObject("XY_Plane"), [""])
sketch11.MapMode = "FlatFace"
sketch11.AttachmentOffset = App.Placement(Vector(0, 0, 20.93), App.Rotation())
sketch11.addGeometry([
    Part.Circle(Vector(6.3, 4.9, 0), Vector(0, 0, 1), 1.5),
    Part.Circle(Vector(6.3, 159.8, 0), Vector(0, 0, 1), 1.5),
    Part.Circle(Vector(163.8, 137, 0), Vector(0, 0, 1), 1.5),
    Part.Circle(Vector(163.8, 4.9, 0), Vector(0, 0, 1), 1.5),
], False)
sketch11.addConstraint([
    Sketcher.Constraint("Equal", 0, 1),
    Sketcher.Constraint("Equal", 1, 2),
    Sketcher.Constraint("Equal", 2, 3),
    Sketcher.Constraint("Horizontal", 0, 3, 3, 3),
    Sketcher.Constraint("Vertical", 0, 3, 1, 3),
    Sketcher.Constraint("Vertical", 2, 3, 3, 3),
    Sketcher.Constraint("Diameter", 0, Q("0.12 in")),
    Sketcher.Constraint("DistanceY", 0, 3, 1, 3, Q("6.1 in")),
    Sketcher.Constraint("DistanceX", 1, 3, 2, 3, Q("6.2 in")),
    Sketcher.Constraint("DistanceY", 2, 3, 1, 3, Q("0.9 in")),
    Sketcher.Constraint("DistanceX", -1, 1, 0, 3, Q("0.25 in")),
    Sketcher.Constraint("DistanceY", -1, 1, 0, 3, Q("4.9 mm")),
])
pocket3 = body.newObject("PartDesign::Pocket", "Pocket002")
pocket3.Profile = sketch11
pocket3.Type = "ThroughAll"

sketch12 = body.newObject("Sketcher::SketchObject", "Sketch011")
sketch12.AttachmentSupport = (doc.getObject("XY_Plane"), [""])
sketch12.MapMode = "FlatFace"
sketch12.addGeometry([
    Part.Circle(Vector(17, -13, 0), Vector(0, 0, 1), 8),
    Part.Circle(Vector(153, -13, 0), Vector(0, 0, 1), 8),
], False)
sketch12.addConstraint([
    Sketcher.Constraint("Equal", 0, 1),
    Sketcher.Constraint("Horizontal", 0, 3, 1, 3),
    Sketcher.Constraint("Diameter", 0, Q("0.6 in")),
    Sketcher.Constraint("DistanceY", 0, 3, -1, 1, Q("0.5 in")),
    Sketcher.Constraint("DistanceX", -1, 1, 0, 3, Q("0.68 in")),
    Sketcher.Constraint("DistanceX", -1, 1, 1, 3, Q("152.772 mm")),
])
pad9 = body.newObject("PartDesign::Pad", "Pad008")
pad9.Profile = sketch12
pad9.Length = Q("0.5 in")
pad9.TaperAngle = -13

sketch13 = body.newObject("Sketcher::SketchObject", "Sketch012")
sketch13.AttachmentSupport = (doc.getObject("XY_Plane"), [""])
sketch13.MapMode = "FlatFace"
sketch13.AttachmentOffset = App.Placement(Vector(0, 0, 0.5 * 25.4), App.Rotation())
sketch13.addGeometry([
    Part.Circle(Vector(17.3, -12.7, 0), Vector(0, 0, 1), 1.5),
    Part.Circle(Vector(152.2, -13.2, 0), Vector(0, 0, 1), 1.5),
], False)
sketch13.addConstraint([
    Sketcher.Constraint("Equal", 0, 1),
    Sketcher.Constraint("Diameter", 0, Q("0.12 in")),
    Sketcher.Constraint("DistanceY", 0, 3, -1, 1, Q("0.5 in")),
    Sketcher.Constraint("DistanceX", -1, 1, 0, 3, Q("0.68 in")),
    Sketcher.Constraint("DistanceX", -1, 1, 1, 3, Q("152.207934 mm")),
    Sketcher.Constraint("DistanceY", 1, 3, -1, 1, Q("13.194583 mm")),
])
pocket4 = body.newObject("PartDesign::Pocket", "Pocket003")
pocket4.Profile = sketch13
pocket4.Type = "ThroughAll"

sketch14 = body.newObject("Sketcher::SketchObject", "Sketch013")
sketch14.AttachmentSupport = (doc.getObject("XY_Plane"), [""])
sketch14.MapMode = "FlatFace"
sketch14.AttachmentOffset = App.Placement(Vector(0, 0, 0.075 * 25.4), App.Rotation())
sketch14.addGeometry([
    Part.Circle(Vector(138.9, -12.7, 0), Vector(0, 0, 1), 2.3),
    Part.Circle(Vector(32.6, -12.7, 0), Vector(0, 0, 1), 2.3),
], False)
sketch14.addConstraint([
    Sketcher.Constraint("Equal", 0, 1),
    Sketcher.Constraint("Horizontal", 0, 3, 1, 3),
    Sketcher.Constraint("Diameter", 0, Q("0.18 in")),
    Sketcher.Constraint("DistanceY", 0, 3, -1, 1, Q("0.5 in")),
    Sketcher.Constraint("DistanceX", -1, 1, 0, 3, Q("138.869804 mm")),
    Sketcher.Constraint("DistanceX", -1, 1, 1, 3, Q("32.580196 mm")),
])
pocket5 = body.newObject("PartDesign::Pocket", "Pocket004")
pocket5.Profile = sketch14
pocket5.Type = "ThroughAll"
doc.recompute()

fillet = body.newObject("PartDesign::Fillet", "Fillet")
fillet.Base = (pocket5, edges_at(pocket5, [(90.592, 119.2, 1.905), (90.592, 48.842, 1.905)]))
fillet.Radius = Q("0.1 in")

sketch15 = body.newObject("Sketcher::SketchObject", "Sketch014")
sketch15.AttachmentSupport = (doc.getObject("XY_Plane"), [""])
sketch15.MapMode = "FlatFace"
sketch15.AttachmentOffset = App.Placement(Vector(0, 0, 0.075 * 25.4), App.Rotation())
sketch15.addGeometry(Part.Circle(Vector(72.7, 94.5, 0), Vector(0, 0, 1), 2.3), False)
sketch15.addConstraint([
    Sketcher.Constraint("Diameter", 0, Q("0.18 in")),
    Sketcher.Constraint("DistanceY", -1, 1, 0, 3, Q("94.518931 mm")),
    Sketcher.Constraint("DistanceX", -1, 1, 0, 3, Q("72.741906 mm")),
])
pocket6 = body.newObject("PartDesign::Pocket", "Pocket005")
pocket6.Profile = sketch15
pocket6.Length = Q("0.5 in")

doc.recompute()
